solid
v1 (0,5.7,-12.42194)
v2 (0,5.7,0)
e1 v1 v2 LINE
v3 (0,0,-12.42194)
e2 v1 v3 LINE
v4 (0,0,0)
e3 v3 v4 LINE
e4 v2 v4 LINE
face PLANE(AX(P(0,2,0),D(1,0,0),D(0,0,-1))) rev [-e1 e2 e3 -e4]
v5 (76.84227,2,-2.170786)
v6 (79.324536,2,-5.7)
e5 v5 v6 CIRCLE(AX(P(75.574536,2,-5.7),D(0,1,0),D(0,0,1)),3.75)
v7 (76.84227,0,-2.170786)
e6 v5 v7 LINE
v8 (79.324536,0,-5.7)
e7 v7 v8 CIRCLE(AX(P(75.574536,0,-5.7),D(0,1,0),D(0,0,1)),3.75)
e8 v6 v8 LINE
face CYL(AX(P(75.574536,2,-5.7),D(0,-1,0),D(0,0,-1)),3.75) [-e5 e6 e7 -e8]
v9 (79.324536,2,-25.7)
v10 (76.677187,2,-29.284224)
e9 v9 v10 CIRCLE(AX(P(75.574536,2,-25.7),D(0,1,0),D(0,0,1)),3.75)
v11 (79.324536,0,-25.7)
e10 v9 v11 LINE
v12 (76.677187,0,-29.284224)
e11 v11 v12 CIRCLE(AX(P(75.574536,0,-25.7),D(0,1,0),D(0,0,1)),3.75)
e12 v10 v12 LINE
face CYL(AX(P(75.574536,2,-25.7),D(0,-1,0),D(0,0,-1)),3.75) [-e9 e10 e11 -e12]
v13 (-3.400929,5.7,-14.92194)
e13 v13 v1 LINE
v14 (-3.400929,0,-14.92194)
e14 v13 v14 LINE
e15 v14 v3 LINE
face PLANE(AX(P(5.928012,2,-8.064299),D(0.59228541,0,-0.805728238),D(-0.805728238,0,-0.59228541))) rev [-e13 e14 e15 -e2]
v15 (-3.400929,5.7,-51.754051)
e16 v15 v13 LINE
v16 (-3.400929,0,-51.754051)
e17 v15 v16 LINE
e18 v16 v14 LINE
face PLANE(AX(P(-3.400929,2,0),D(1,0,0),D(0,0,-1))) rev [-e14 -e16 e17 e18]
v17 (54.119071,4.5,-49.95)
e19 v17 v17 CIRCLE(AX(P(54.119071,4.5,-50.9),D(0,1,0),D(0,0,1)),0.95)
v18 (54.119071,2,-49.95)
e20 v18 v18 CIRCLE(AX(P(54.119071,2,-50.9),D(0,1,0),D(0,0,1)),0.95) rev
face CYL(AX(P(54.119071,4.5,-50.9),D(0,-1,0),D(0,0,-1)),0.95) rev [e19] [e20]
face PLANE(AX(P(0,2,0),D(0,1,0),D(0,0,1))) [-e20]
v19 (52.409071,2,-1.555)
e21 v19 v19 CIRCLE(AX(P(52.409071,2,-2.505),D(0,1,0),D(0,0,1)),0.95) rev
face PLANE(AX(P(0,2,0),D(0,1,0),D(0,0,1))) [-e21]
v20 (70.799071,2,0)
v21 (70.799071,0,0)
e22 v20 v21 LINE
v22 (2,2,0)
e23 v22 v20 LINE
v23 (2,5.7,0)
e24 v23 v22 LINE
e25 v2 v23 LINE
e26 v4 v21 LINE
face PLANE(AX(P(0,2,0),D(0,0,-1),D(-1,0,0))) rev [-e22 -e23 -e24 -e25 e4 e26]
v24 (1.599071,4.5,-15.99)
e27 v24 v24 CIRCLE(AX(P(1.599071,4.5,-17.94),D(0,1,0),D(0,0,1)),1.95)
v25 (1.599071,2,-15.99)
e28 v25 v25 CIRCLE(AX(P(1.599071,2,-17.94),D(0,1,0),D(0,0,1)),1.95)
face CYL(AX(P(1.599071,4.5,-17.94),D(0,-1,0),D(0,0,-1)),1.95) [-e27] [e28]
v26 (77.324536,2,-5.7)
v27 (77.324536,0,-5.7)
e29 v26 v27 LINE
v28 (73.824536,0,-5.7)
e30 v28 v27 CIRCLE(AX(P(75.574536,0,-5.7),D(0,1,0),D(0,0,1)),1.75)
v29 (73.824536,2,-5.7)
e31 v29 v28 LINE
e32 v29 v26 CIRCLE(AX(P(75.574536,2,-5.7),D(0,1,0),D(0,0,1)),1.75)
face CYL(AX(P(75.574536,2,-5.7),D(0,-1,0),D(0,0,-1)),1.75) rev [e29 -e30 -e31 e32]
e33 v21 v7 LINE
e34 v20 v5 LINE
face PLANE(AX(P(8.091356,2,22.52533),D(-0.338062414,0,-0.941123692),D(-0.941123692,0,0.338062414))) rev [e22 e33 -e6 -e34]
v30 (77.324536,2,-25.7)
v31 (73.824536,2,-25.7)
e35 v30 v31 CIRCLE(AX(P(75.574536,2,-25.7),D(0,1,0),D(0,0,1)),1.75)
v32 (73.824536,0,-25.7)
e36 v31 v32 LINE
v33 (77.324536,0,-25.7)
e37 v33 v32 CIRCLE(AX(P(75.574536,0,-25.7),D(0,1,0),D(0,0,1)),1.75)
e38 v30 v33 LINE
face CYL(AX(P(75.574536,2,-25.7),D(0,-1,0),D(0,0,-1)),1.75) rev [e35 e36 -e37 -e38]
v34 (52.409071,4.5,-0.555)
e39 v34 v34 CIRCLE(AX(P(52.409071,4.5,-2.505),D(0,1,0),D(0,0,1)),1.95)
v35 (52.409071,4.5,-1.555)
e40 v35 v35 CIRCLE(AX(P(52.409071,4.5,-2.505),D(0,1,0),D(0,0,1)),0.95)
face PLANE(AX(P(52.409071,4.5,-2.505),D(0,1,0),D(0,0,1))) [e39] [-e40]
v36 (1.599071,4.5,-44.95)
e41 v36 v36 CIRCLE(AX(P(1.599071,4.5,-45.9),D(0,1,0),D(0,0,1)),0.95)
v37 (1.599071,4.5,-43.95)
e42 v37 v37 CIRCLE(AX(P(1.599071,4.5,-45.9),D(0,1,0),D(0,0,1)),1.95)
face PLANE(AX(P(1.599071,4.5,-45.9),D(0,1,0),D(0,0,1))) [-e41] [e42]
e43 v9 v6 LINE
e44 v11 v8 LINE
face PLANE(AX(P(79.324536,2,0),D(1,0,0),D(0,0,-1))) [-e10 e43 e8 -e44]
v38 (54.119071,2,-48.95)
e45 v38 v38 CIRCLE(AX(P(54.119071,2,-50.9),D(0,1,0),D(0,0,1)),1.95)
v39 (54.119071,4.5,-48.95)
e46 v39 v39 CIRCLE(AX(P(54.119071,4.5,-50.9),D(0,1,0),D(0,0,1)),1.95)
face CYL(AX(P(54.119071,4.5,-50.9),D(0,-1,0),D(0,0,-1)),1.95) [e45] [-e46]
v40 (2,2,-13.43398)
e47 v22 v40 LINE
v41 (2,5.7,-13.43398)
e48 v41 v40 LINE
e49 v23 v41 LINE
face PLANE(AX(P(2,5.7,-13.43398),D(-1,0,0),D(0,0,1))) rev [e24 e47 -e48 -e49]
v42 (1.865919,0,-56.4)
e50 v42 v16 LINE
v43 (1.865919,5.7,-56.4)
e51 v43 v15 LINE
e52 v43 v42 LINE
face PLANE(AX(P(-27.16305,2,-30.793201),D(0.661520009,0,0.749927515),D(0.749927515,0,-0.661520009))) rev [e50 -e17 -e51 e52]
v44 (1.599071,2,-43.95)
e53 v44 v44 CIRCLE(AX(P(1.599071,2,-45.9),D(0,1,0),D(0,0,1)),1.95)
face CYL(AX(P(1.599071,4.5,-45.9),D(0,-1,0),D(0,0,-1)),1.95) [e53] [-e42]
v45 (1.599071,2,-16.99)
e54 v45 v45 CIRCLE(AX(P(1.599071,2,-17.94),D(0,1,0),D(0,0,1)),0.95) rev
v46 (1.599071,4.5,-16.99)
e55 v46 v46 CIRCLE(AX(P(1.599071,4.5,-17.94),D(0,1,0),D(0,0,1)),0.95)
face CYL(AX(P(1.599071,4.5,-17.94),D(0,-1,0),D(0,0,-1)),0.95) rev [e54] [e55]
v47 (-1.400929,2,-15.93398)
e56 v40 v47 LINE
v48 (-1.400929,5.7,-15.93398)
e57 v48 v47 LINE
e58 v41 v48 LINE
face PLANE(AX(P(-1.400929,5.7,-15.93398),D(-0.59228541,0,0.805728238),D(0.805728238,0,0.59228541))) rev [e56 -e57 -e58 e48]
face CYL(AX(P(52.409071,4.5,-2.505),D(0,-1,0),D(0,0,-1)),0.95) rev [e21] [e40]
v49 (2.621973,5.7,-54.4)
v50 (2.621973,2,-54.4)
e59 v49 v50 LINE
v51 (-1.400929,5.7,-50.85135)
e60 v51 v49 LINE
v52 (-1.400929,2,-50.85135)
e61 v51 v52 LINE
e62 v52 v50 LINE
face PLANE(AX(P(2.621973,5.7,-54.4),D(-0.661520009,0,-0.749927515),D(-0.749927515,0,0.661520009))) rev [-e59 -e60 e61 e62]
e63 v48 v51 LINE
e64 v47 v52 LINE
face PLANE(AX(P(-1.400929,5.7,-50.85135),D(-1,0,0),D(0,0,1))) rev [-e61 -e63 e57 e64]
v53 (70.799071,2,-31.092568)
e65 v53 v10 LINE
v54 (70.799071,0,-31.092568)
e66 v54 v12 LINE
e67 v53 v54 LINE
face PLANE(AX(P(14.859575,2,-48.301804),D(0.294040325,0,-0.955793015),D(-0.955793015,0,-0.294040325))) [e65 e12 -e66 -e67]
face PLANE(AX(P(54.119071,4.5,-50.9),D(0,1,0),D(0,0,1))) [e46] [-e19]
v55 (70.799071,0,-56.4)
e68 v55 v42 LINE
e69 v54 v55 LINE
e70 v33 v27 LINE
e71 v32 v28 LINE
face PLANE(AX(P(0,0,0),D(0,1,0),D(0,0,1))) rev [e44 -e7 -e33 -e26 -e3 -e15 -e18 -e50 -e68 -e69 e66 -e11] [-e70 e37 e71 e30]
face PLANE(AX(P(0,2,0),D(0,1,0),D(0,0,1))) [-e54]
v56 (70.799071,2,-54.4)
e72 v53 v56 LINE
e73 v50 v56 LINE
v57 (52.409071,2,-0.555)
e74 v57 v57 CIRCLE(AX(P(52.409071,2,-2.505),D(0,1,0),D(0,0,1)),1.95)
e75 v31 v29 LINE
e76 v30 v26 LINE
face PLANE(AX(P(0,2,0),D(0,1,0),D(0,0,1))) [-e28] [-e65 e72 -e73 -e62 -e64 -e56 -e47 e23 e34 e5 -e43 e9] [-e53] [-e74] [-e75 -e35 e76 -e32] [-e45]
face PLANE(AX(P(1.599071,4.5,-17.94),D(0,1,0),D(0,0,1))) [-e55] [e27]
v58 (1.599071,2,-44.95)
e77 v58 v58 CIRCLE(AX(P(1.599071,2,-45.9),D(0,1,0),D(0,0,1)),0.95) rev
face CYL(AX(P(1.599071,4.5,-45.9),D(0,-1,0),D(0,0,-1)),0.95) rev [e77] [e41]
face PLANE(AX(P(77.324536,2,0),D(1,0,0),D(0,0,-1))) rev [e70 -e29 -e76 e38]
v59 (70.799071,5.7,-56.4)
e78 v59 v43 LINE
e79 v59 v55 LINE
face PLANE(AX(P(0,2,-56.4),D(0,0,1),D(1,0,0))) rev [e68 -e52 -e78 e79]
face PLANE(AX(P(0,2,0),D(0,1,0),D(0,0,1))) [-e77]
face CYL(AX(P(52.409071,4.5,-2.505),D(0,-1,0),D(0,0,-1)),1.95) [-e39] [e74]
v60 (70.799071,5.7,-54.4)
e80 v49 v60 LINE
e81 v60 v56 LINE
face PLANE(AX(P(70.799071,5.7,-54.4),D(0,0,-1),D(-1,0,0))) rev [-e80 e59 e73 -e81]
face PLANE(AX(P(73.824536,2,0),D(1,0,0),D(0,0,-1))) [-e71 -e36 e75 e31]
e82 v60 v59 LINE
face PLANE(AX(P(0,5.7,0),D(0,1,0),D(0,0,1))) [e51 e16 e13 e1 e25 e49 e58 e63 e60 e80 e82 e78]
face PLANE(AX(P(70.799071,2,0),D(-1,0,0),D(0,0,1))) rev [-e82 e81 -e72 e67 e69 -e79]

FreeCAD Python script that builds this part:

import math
import FreeCAD as App
import Part
import Sketcher

V = App.Vector
Q = App.Units.Quantity


def add_polygon(sketch, points):
    """Adds a closed chain of lines whose ends are joined by coincident constraints."""
    first, n = sketch.GeometryCount, len(points)
    for a, b in zip(points, points[1:] + points[:1]):
        sketch.addGeometry(Part.LineSegment(App.Vector(*a, 0), App.Vector(*b, 0)), False)
    for i in range(n):
        sketch.addConstraint(Sketcher.Constraint("Coincident", first + i, 2, first + (i + 1) % n, 1))

doc = App.newDocument("Part")
body = doc.addObject("PartDesign::Body", "Body")

sketch1 = doc.addObject("Sketcher::SketchObject", "Sketch")
body.addObject(sketch1)
sketch1.AttachmentSupport = (doc.XZ_Plane, [""])
sketch1.MapMode = "FlatFace"
sketch1.addGeometry(Part.LineSegment(V(70.799071, -31.092568, 0), V(70.799071, -56.4, 0)), False)
sketch1.addGeometry(Part.LineSegment(V(70.799071, -56.4, 0), V(1.865919, -56.4, 0)), False)
sketch1.addGeometry(Part.LineSegment(V(1.865919, -56.4, 0), V(-3.400929, -51.754051, 0)), False)
sketch1.addGeometry(Part.LineSegment(V(-3.400929, -51.754051, 0), V(-3.400929, -14.92194, 0)), False)
sketch1.addGeometry(Part.LineSegment(V(-3.400929, -14.92194, 0), V(0, -12.42194, 0)), False)
sketch1.addGeometry(Part.LineSegment(V(0, -12.42194, 0), V(0, 0, 0)), False)
sketch1.addGeometry(Part.LineSegment(V(0, 0, 0), V(70.799071, 0, 0)), False)
sketch1.addGeometry(Part.LineSegment(V(70.799071, 0, 0), V(76.84227, -2.170786, 0)), False)
sketch1.addGeometry(Part.ArcOfCircle(Part.Circle(V(75.574536, -5.7, 0), V(0, 0, 1), 3.75), math.radians(0), math.radians(70.24113)), False)
sketch1.addGeometry(Part.LineSegment(V(79.324536, -5.7, 0), V(79.324536, -25.7, 0)), False)
sketch1.addGeometry(Part.ArcOfCircle(Part.Circle(V(75.574536, -25.7, 0), V(0, 0, 1), 3.75), math.radians(-72.9), math.radians(0)), False)
sketch1.addGeometry(Part.LineSegment(V(76.677187, -29.284224, 0), V(70.799071, -31.092568, 0)), False)
sketch1.addGeometry(Part.ArcOfCircle(Part.Circle(V(75.574536, -25.7, 0), V(0, 0, 1), 1.75), math.radians(180), math.radians(360)), False)
sketch1.addGeometry(Part.LineSegment(V(77.324536, -25.7, 0), V(77.324536, -5.7, 0)), False)
sketch1.addGeometry(Part.ArcOfCircle(Part.Circle(V(75.574536, -5.7, 0), V(0, 0, 1), 1.75), math.radians(0), math.radians(180)), False)
sketch1.addGeometry(Part.LineSegment(V(73.824536, -5.7, 0), V(73.824536, -25.7, 0)), False)
sketch1.addConstraint(Sketcher.Constraint("Coincident", 0, 2, 1, 1))
sketch1.addConstraint(Sketcher.Constraint("Coincident", 1, 2, 2, 1))
sketch1.addConstraint(Sketcher.Constraint("Coincident", 2, 2, 3, 1))
sketch1.addConstraint(Sketcher.Constraint("Coincident", 3, 2, 4, 1))
sketch1.addConstraint(Sketcher.Constraint("Coincident", 4, 2, 5, 1))
sketch1.addConstraint(Sketcher.Constraint("Coincident", 5, 2, 6, 1))
sketch1.addConstraint(Sketcher.Constraint("Coincident", 6, 2, 7, 1))
sketch1.addConstraint(Sketcher.Constraint("Tangent", 7, 2, 8, 2))
sketch1.addConstraint(Sketcher.Constraint("Tangent", 8, 1, 9, 1))
sketch1.addConstraint(Sketcher.Constraint("Tangent", 9, 2, 10, 2))
sketch1.addConstraint(Sketcher.Constraint("Tangent", 10, 1, 11, 1))
sketch1.addConstraint(Sketcher.Constraint("Coincident", 11, 2, 0, 1))
sketch1.addConstraint(Sketcher.Constraint("Tangent", 12, 2, 13, 1))
sketch1.addConstraint(Sketcher.Constraint("Tangent", 13, 2, 14, 1))
sketch1.addConstraint(Sketcher.Constraint("Tangent", 14, 2, 15, 1))
sketch1.addConstraint(Sketcher.Constraint("Tangent", 15, 2, 12, 1))
sketch1.addConstraint(Sketcher.Constraint("Vertical", 0))
sketch1.addConstraint(Sketcher.Constraint("Horizontal", 1))
sketch1.addConstraint(Sketcher.Constraint("Vertical", 3))
sketch1.addConstraint(Sketcher.Constraint("Vertical", 5))
sketch1.addConstraint(Sketcher.Constraint("Horizontal", 6))
sketch1.addConstraint(Sketcher.Constraint("Vertical", 9))
sketch1.addConstraint(Sketcher.Constraint("Vertical", 13))
sketch1.addConstraint(Sketcher.Constraint("Vertical", 15))
sketch1.addConstraint(Sketcher.Constraint("Coincident", 5, 2, -1, 1))
sketch1.addConstraint(Sketcher.Constraint("Coincident", 12, 3, 10, 3))
sketch1.addConstraint(Sketcher.Constraint("Coincident", 14, 3, 8, 3))
sketch1.addConstraint(Sketcher.Constraint("Vertical", 0, 2, 6, 2))
sketch1.addConstraint(Sketcher.Constraint("DistanceY", 9, 2, 9, 1, 20.0))
sketch1.addConstraint(Sketcher.Constraint("Radius", 8, 3.75))
sketch1.addConstraint(Sketcher.Constraint("Radius", 12, 1.75))
sketch1.addConstraint(Sketcher.Constraint("Angle", 11, Q("-162.9 deg")))
sketch1.addConstraint(Sketcher.Constraint("DistanceY", 8, 3, -1, 1, 5.7))
sketch1.addConstraint(Sketcher.Constraint("DistanceY", 0, 2, -1, 1, 56.4))
sketch1.addConstraint(Sketcher.Constraint("DistanceX", 2, 2, 0, 2, 74.2))
sketch1.addConstraint(Sketcher.Constraint("DistanceY", 3, 2, 4, 2, 2.5))
sketch1.addConstraint(Sketcher.Constraint("DistanceX", 6, 1, 6, 2, 70.799071))
sketch1.addConstraint(Sketcher.Constraint("DistanceY", 0, 2, 0, 1, 25.307432))
sketch1.addConstraint(Sketcher.Constraint("DistanceY", 3, 1, 3, 2, 36.832111))
sketch1.addConstraint(Sketcher.Constraint("DistanceY", 5, 1, 5, 2, 12.42194))
sketch1.addConstraint(Sketcher.Constraint("DistanceX", 1, 2, 1, 1, 68.933152))
pad1 = doc.addObject("PartDesign::Pad", "Pad")
body.addObject(pad1)
pad1.Profile = sketch1
pad1.Length = 2
pad1.Reversed = True

sketch2 = doc.addObject("Sketcher::SketchObject", "Sketch001")
body.addObject(sketch2)
sketch2.AttachmentSupport = (doc.XZ_Plane, [""])
sketch2.MapMode = "FlatFace"
sketch2.AttachmentOffset = App.Placement(V(0, 0, -2), App.Rotation())
add_polygon(sketch2, [(2.621973, -54.4), (70.799071, -54.4), (70.799071, -56.4), (1.865919, -56.4), (-3.400929, -51.754051), (-3.400929, -14.92194), (0, -12.42194), (0, 0), (2, 0), (2, -13.43398), (-1.400929, -15.93398), (-1.400929, -50.85135)])
sketch2.addConstraint(Sketcher.Constraint("Horizontal", 0))
sketch2.addConstraint(Sketcher.Constraint("Vertical", 1))
sketch2.addConstraint(Sketcher.Constraint("Horizontal", 2))
sketch2.addConstraint(Sketcher.Constraint("Vertical", 4))
sketch2.addConstraint(Sketcher.Constraint("Vertical", 6))
sketch2.addConstraint(Sketcher.Constraint("Horizontal", 7))
sketch2.addConstraint(Sketcher.Constraint("Vertical", 8))
sketch2.addConstraint(Sketcher.Constraint("Vertical", 10))
sketch2.addConstraint(Sketcher.Constraint("Coincident", 6, 2, -1, 1))
sketch2.addConstraint(Sketcher.Constraint("Parallel", 5, 9))
sketch2.addConstraint(Sketcher.Constraint("Parallel", 3, 11))
sketch2.addConstraint(Sketcher.Constraint("Equal", 7, 1))
sketch2.addConstraint(Sketcher.Constraint("Equal", 5, 9))
sketch2.addConstraint(Sketcher.Constraint("DistanceX", 7, 1, 7, 2, 2.0))
sketch2.addConstraint(Sketcher.Constraint("DistanceY", 0, 2, -1, 1, 54.4))
sketch2.addConstraint(Sketcher.Constraint("DistanceX", 3, 2, 0, 2, 74.2))
sketch2.addConstraint(Sketcher.Constraint("DistanceY", 4, 2, 5, 2, 2.5))
sketch2.addConstraint(Sketcher.Constraint("DistanceX", 0, 1, 0, 2, 68.177098))
sketch2.addConstraint(Sketcher.Constraint("DistanceY", 4, 1, 4, 2, 36.832111))
sketch2.addConstraint(Sketcher.Constraint("DistanceY", 6, 1, 6, 2, 12.42194))
sketch2.addConstraint(Sketcher.Constraint("DistanceY", 8, 2, 8, 1, 13.43398))
sketch2.addConstraint(Sketcher.Constraint("DistanceY", 10, 2, 10, 1, 34.91737))
sketch2.addConstraint(Sketcher.Constraint("Distance", 5, 4.220938))
pad2 = doc.addObject("PartDesign::Pad", "Pad001")
body.addObject(pad2)
pad2.Profile = sketch2
pad2.Length = 3.7
pad2.Reversed = True

sketch3 = doc.addObject("Sketcher::SketchObject", "Sketch002")
body.addObject(sketch3)
sketch3.AttachmentSupport = (doc.XZ_Plane, [""])
sketch3.MapMode = "FlatFace"
sketch3.AttachmentOffset = App.Placement(V(0, 0, -2), App.Rotation())
sketch3.addGeometry(Part.Circle(V(1.599071, -45.9, 0), V(0, 0, 1), 1.95), False)
sketch3.addGeometry(Part.Circle(V(1.599071, -45.9, 0), V(0, 0, 1), 0.95), False)
sketch3.addGeometry(Part.Circle(V(1.599071, -17.94, 0), V(0, 0, 1), 1.95), False)
sketch3.addGeometry(Part.Circle(V(1.599071, -17.94, 0), V(0, 0, 1), 0.95), False)
sketch3.addGeometry(Part.Circle(V(52.409071, -2.505, 0), V(0, 0, 1), 1.95), False)
sketch3.addGeometry(Part.Circle(V(52.409071, -2.505, 0), V(0, 0, 1), 0.95), False)
sketch3.addGeometry(Part.Circle(V(54.119071, -50.9, 0), V(0, 0, 1), 1.95), False)
sketch3.addGeometry(Part.Circle(V(54.119071, -50.9, 0), V(0, 0, 1), 0.95), False)
sketch3.addConstraint(Sketcher.Constraint("Coincident", 1, 3, 0, 3))
sketch3.addConstraint(Sketcher.Constraint("Coincident", 3, 3, 2, 3))
sketch3.addConstraint(Sketcher.Constraint("Coincident", 5, 3, 4, 3))
sketch3.addConstraint(Sketcher.Constraint("Coincident", 7, 3, 6, 3))
sketch3.addConstraint(Sketcher.Constraint("Equal", 0, 2))
sketch3.addConstraint(Sketcher.Constraint("Equal", 1, 3))
sketch3.addConstraint(Sketcher.Constraint("Equal", 2, 4))
sketch3.addConstraint(Sketcher.Constraint("Equal", 3, 5))
sketch3.addConstraint(Sketcher.Constraint("Equal", 4, 6))
sketch3.addConstraint(Sketcher.Constraint("Equal", 5, 7))
sketch3.addConstraint(Sketcher.Constraint("Vertical", 1, 3, 2, 3))
sketch3.addConstraint(Sketcher.Constraint("Diameter", 0, 3.9))
sketch3.addConstraint(Sketcher.Constraint("Diameter", 1, 1.9))
sketch3.addConstraint(Sketcher.Constraint("DistanceY", 6, 3, 0, 3, 5.0))
sketch3.addConstraint(Sketcher.Constraint("DistanceY", 0, 3, -1, 1, 45.9))
sketch3.addConstraint(Sketcher.Constraint("DistanceY", 2, 3, -1, 1, 17.94))
sketch3.addConstraint(Sketcher.Constraint("DistanceX", 2, 3, 4, 3, 50.81))
sketch3.addConstraint(Sketcher.Constraint("DistanceX", 4, 3, 6, 3, 1.71))
sketch3.addConstraint(Sketcher.Constraint("DistanceY", 4, 3, -1, 1, 2.505))
sketch3.addConstraint(Sketcher.Constraint("DistanceX", -1, 1, 0, 3, 1.599071))
pad3 = doc.addObject("PartDesign::Pad", "Pad002")
body.addObject(pad3)
pad3.Profile = sketch3
pad3.Length = 2.5
pad3.Reversed = True

doc.recompute()
